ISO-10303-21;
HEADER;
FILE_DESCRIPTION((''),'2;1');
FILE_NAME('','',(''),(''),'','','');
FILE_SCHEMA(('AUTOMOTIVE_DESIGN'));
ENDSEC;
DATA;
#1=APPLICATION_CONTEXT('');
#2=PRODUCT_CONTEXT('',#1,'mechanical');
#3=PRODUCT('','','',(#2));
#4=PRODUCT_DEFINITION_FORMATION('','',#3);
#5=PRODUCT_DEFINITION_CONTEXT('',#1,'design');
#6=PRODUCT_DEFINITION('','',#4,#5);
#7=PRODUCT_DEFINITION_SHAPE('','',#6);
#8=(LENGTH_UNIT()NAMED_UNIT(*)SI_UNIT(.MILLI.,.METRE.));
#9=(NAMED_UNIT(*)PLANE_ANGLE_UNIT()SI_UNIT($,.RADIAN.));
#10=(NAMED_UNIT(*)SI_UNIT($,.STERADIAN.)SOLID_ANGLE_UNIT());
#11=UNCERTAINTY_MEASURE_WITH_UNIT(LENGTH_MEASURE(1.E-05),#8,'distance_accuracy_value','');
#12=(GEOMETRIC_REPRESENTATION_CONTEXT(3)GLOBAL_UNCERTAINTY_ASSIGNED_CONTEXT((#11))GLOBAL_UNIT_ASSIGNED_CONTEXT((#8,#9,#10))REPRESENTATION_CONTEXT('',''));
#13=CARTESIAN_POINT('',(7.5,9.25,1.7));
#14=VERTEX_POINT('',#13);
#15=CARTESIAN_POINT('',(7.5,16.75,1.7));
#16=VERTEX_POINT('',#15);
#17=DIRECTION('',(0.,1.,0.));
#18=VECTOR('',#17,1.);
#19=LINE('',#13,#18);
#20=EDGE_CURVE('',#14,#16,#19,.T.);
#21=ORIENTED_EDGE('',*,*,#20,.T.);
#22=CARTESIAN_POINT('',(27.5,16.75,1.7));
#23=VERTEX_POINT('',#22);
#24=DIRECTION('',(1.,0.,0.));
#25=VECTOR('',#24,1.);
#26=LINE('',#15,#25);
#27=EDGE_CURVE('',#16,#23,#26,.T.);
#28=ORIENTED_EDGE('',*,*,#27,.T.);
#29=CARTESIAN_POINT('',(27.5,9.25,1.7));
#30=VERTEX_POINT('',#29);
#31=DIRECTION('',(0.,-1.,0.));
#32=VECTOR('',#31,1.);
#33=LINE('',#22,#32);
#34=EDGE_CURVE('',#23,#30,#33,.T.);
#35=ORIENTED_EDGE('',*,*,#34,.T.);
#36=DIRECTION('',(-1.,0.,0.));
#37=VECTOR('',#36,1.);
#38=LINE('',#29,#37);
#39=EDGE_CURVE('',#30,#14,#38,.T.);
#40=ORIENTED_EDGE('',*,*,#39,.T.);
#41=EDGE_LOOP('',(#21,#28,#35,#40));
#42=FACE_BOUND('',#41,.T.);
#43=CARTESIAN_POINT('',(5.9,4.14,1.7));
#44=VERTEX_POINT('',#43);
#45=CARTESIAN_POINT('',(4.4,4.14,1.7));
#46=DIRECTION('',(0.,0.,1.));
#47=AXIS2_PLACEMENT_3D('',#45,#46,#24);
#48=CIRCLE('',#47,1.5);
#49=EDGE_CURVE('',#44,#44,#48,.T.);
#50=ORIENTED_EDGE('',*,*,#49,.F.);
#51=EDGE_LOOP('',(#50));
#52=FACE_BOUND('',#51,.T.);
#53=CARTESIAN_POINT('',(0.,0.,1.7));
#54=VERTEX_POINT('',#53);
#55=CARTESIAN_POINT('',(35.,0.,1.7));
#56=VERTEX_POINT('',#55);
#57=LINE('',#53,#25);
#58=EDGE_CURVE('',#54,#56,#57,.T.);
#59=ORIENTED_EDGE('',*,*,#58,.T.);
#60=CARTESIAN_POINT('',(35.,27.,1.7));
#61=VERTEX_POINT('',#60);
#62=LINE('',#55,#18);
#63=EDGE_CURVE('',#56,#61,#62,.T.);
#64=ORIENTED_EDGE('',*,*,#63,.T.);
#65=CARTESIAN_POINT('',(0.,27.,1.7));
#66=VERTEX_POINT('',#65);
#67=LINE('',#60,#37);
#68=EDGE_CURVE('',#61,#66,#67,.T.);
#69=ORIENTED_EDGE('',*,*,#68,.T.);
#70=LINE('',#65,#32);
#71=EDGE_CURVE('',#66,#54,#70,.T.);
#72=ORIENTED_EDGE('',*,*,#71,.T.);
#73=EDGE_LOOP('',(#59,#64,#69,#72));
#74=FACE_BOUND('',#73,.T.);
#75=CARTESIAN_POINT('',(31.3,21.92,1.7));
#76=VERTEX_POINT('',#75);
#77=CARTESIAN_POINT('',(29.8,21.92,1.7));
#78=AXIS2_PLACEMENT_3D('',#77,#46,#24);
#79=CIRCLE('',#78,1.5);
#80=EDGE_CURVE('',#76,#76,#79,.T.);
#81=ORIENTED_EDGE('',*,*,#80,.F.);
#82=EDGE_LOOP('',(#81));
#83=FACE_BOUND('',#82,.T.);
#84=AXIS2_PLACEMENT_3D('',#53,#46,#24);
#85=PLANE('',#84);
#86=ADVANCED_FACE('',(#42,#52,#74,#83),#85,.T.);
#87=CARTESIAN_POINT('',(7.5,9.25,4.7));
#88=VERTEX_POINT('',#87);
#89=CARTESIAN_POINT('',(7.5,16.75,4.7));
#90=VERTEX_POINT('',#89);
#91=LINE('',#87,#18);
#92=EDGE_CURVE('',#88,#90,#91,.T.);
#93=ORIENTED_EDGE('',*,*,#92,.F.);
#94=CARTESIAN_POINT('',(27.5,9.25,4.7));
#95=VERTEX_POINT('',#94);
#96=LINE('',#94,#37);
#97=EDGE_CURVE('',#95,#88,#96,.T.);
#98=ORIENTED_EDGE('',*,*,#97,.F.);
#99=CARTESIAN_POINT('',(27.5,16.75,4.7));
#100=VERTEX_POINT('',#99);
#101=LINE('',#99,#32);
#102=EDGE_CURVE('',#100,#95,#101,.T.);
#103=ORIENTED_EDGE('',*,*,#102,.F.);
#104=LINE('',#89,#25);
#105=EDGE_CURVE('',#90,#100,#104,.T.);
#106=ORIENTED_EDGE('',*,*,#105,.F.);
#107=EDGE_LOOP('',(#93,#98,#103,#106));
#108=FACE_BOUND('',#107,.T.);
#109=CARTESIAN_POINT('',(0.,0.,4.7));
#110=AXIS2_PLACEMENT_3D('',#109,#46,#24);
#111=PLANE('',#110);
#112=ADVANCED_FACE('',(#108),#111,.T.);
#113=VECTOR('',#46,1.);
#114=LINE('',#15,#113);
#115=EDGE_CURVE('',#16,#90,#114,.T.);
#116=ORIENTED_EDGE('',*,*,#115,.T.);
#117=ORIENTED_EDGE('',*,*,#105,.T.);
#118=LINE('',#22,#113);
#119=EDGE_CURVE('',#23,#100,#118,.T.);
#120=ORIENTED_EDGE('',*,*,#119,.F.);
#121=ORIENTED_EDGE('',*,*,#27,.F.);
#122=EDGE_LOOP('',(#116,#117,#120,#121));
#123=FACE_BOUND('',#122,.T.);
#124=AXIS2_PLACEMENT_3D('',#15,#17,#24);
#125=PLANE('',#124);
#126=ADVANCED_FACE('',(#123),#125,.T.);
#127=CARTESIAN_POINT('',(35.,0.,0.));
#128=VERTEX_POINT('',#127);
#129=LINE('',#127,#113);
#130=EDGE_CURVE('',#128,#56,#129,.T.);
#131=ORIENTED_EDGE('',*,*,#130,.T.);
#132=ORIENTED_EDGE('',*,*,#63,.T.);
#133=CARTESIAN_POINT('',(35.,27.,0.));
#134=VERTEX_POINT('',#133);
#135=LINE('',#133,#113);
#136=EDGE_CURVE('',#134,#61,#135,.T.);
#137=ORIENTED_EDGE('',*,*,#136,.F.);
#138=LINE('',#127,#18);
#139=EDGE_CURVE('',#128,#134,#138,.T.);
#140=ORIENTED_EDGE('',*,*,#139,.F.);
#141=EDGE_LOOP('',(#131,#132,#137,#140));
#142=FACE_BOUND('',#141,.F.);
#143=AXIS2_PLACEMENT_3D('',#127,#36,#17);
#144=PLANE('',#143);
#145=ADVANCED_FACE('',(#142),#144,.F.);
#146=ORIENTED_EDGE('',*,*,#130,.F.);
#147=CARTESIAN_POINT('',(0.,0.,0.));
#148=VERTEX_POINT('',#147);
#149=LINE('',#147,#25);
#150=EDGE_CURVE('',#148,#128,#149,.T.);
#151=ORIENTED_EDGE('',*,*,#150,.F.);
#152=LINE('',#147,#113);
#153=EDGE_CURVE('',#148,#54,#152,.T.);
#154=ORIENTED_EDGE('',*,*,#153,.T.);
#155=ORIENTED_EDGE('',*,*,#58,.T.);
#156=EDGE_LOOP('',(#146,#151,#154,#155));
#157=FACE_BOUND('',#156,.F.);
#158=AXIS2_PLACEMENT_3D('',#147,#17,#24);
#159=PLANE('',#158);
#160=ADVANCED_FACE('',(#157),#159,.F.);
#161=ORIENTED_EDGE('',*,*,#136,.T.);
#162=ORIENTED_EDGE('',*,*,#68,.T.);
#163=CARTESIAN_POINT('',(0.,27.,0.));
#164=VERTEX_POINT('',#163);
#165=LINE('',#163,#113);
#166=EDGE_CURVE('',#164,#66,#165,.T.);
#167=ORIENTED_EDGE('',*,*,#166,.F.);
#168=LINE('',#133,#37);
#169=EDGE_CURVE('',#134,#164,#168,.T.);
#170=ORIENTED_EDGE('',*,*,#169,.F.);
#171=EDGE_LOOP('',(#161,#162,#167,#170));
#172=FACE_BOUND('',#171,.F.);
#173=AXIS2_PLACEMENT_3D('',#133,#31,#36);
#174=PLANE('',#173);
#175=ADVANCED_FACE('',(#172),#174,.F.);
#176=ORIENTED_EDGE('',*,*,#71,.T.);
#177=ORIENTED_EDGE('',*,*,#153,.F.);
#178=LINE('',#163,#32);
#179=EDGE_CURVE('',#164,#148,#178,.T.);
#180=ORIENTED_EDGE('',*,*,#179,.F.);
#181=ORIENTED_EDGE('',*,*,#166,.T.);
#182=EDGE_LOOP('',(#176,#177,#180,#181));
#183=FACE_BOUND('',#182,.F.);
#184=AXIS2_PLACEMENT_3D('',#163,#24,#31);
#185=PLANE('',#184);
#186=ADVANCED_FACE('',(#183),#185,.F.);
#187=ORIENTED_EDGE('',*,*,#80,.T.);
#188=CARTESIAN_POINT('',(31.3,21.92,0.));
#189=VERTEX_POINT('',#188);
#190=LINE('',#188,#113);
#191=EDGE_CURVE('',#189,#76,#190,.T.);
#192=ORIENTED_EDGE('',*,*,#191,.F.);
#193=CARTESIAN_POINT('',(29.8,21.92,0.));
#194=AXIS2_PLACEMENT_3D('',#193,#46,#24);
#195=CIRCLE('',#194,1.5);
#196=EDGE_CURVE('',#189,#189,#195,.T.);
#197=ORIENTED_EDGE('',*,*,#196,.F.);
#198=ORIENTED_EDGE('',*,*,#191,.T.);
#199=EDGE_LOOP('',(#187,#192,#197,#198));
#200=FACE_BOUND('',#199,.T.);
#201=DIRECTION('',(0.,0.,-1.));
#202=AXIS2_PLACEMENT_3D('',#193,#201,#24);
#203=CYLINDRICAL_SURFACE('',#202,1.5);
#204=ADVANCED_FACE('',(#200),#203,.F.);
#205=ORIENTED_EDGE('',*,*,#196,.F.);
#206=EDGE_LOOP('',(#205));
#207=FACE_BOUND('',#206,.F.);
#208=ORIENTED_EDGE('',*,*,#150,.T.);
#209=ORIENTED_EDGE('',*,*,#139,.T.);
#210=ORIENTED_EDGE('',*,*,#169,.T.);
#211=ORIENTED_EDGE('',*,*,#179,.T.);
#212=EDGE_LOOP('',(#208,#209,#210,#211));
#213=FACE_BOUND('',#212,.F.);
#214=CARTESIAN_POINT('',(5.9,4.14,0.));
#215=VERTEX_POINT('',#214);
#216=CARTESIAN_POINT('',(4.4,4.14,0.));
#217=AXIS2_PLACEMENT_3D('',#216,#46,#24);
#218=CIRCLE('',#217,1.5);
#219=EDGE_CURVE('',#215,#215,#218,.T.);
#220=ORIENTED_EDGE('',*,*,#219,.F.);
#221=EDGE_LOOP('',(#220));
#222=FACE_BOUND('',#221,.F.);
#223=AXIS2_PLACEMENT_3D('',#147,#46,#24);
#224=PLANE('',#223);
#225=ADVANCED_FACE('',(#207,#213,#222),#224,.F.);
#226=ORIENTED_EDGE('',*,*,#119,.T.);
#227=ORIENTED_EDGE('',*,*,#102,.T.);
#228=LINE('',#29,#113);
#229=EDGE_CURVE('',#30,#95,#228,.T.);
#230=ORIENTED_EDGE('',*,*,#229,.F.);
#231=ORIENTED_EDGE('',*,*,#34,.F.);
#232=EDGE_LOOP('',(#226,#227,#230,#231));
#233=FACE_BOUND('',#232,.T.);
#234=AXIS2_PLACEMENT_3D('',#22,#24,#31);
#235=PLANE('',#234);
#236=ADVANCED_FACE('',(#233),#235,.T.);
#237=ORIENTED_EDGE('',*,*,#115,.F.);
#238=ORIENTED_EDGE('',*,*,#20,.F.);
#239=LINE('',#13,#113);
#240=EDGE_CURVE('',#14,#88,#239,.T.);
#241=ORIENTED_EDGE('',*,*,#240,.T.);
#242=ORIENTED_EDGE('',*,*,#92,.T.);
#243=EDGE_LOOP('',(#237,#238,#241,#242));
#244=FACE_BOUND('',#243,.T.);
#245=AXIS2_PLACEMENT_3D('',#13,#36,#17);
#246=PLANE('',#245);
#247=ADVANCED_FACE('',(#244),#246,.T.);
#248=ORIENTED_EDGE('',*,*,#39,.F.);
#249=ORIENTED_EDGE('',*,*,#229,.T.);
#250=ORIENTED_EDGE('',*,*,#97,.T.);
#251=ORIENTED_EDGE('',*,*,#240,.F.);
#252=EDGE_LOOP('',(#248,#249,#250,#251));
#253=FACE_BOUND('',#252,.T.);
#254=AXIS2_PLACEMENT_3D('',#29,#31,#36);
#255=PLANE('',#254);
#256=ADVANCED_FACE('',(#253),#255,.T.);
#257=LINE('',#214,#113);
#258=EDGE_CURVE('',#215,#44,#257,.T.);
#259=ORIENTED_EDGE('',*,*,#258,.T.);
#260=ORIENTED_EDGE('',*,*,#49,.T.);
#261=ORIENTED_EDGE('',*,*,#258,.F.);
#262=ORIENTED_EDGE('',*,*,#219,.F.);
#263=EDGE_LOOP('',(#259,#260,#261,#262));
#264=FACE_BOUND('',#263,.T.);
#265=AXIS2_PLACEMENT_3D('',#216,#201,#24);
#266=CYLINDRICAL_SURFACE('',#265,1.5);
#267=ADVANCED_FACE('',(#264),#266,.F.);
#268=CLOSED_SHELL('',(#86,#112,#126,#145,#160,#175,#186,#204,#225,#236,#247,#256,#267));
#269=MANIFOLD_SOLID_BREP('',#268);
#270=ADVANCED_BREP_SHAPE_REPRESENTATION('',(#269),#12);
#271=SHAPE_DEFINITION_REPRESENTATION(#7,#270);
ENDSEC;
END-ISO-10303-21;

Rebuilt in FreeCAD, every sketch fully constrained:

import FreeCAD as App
import Part
import Sketcher
Q = App.Units.Quantity


def add_polygon(sketch, points):
    """Adds a closed chain of lines whose ends are joined by coincident constraints."""
    first, n = sketch.GeometryCount, len(points)
    for a, b in zip(points, points[1:] + points[:1]):
        sketch.addGeometry(Part.LineSegment(App.Vector(*a, 0), App.Vector(*b, 0)), False)
    for i in range(n):
        sketch.addConstraint(Sketcher.Constraint("Coincident", first + i, 2, first + (i + 1) % n, 1))

doc = App.newDocument("Part")
params = doc.addObject("Spreadsheet::Sheet", "Params")
for row, (alias, value) in enumerate([
    ("sketch1_diameter", "3 mm"),
    ("sketch1_width", "35 mm"),
    ("sketch1_height", "27 mm"),
    ("pad1_length", "1.7 mm"),
    ("sketch2_height", "7.5 mm"),
    ("sketch2_width", "20 mm"),
    ("pad2_length", "3 mm"),
], start=1):
    params.set(f"A{row}", alias)
    params.set(f"B{row}", "=" + value)
    params.setAlias(f"B{row}", alias)

body = doc.addObject("PartDesign::Body", "Body")

# Sketch on XY plane
sketch1 = body.newObject("Sketcher::SketchObject", "Sketch")
sketch1.AttachmentSupport = (doc.getObject("XY_Plane"), [""])
sketch1.MapMode = "FlatFace"
add_polygon(sketch1, [(0, 27), (0, 0), (35, 0), (35, 27)])  # lines 0-3
sketch1.addGeometry(Part.Circle(App.Vector(4.4, 4.14, 0), App.Vector(0, 0, 1), 1.5), False)  # 4
sketch1.addGeometry(Part.Circle(App.Vector(29.8, 21.92, 0), App.Vector(0, 0, 1), 1.5), False)  # 5
sketch1.addConstraint([
    Sketcher.Constraint("Vertical", 0),
    Sketcher.Constraint("Horizontal", 1),
    Sketcher.Constraint("Vertical", 2),
    Sketcher.Constraint("Horizontal", 3),
    Sketcher.Constraint("Coincident", 0, 2, -1, 1),
    Sketcher.Constraint("Equal", 4, 5),
    Sketcher.Constraint("Diameter", 4, Q("3 mm")),
    Sketcher.Constraint("DistanceX", 1, 1, 1, 2, Q("35 mm")),
    Sketcher.Constraint("DistanceY", 0, 2, 0, 1, Q("27 mm")),
    Sketcher.Constraint("DistanceX", -1, 1, 4, 3, Q("4.4 mm")),
    Sketcher.Constraint("DistanceX", 4, 3, 5, 3, Q("25.4 mm")),
    Sketcher.Constraint("DistanceY", 4, 3, 5, 3, Q("17.78 mm")),
    Sketcher.Constraint("DistanceY", 5, 3, 2, 2, Q("5.08 mm")),
])
sketch1.setExpression("Constraints[10]", "Params.sketch1_diameter")
sketch1.setExpression("Constraints[11]", "Params.sketch1_width")
sketch1.setExpression("Constraints[12]", "Params.sketch1_height")
pad1 = body.newObject("PartDesign::Pad", "Pad")
pad1.Profile = sketch1
pad1.setExpression("Length", "Params.pad1_length")

# Sketch on XY plane
sketch2 = body.newObject("Sketcher::SketchObject", "Sketch001")
sketch2.AttachmentSupport = (doc.getObject("XY_Plane"), [""])
sketch2.MapMode = "FlatFace"
sketch2.AttachmentOffset = App.Placement(App.Vector(0, 0, 1.7), App.Rotation())
add_polygon(sketch2, [(27.5, 16.75), (7.5, 16.75), (7.5, 9.25), (27.5, 9.25)])  # lines 0-3
sketch2.addConstraint([
    Sketcher.Constraint("Horizontal", 0),
    Sketcher.Constraint("Vertical", 1),
    Sketcher.Constraint("Horizontal", 2),
    Sketcher.Constraint("Vertical", 3),
    Sketcher.Constraint("DistanceY", 1, 2, 1, 1, Q("7.5 mm")),
    Sketcher.Constraint("DistanceX", -1, 1, 0, 2, Q("7.5 mm")),
    Sketcher.Constraint("DistanceX", 0, 2, 0, 1, Q("20 mm")),
    Sketcher.Constraint("DistanceY", -1, 1, 0, 2, Q("16.75 mm")),
])
sketch2.setExpression("Constraints[8]", "Params.sketch2_height")
sketch2.setExpression("Constraints[10]", "Params.sketch2_width")
pad2 = body.newObject("PartDesign::Pad", "Pad001")
pad2.Profile = sketch2
pad2.setExpression("Length", "Params.pad2_length")

doc.recompute()
